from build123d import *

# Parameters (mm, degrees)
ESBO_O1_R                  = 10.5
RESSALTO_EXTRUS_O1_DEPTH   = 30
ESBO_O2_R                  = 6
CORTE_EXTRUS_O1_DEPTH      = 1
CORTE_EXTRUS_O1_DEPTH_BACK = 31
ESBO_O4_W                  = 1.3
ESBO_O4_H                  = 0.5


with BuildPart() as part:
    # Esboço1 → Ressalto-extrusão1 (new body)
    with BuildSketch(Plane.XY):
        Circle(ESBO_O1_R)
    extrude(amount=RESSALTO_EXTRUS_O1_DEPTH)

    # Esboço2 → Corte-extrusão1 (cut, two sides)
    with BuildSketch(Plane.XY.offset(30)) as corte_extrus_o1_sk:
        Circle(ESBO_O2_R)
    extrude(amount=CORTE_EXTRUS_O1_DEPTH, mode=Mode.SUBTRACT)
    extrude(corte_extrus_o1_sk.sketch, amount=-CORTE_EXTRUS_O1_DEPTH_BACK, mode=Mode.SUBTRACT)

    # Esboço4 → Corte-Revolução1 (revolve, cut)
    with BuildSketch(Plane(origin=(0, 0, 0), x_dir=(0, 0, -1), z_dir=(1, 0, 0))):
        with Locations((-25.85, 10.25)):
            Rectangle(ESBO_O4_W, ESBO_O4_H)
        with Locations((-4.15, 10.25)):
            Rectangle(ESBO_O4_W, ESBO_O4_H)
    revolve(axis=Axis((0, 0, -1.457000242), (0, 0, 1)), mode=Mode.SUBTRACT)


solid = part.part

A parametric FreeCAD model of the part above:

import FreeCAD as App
import Part
import Sketcher
from FreeCAD import Vector

doc = App.newDocument("Part")
body = doc.addObject("PartDesign::Body", "Body")

sketch1 = doc.addObject("Sketcher::SketchObject", "Sketch")
body.addObject(sketch1)
sketch1.AttachmentSupport = (doc.XY_Plane, [""])
sketch1.MapMode = "FlatFace"
sketch1.addGeometry(Part.Circle(Vector(0, 0, 0), Vector(0, 0, 1), 10.5), False)
sketch1.addConstraint(Sketcher.Constraint("Coincident", 0, 3, -1, 1))
sketch1.addConstraint(Sketcher.Constraint("Diameter", 0, 21.0))
pad1 = doc.addObject("PartDesign::Pad", "Pad")
body.addObject(pad1)
pad1.Profile = sketch1
pad1.Length = 30

sketch2 = doc.addObject("Sketcher::SketchObject", "Sketch001")
body.addObject(sketch2)
sketch2.AttachmentSupport = (doc.XY_Plane, [""])
sketch2.MapMode = "FlatFace"
sketch2.AttachmentOffset = App.Placement(Vector(0, 0, 30), App.Rotation())
sketch2.addGeometry(Part.Circle(Vector(0, 0, 0), Vector(0, 0, 1), 6), False)
sketch2.addConstraint(Sketcher.Constraint("Coincident", 0, 3, -1, 1))
sketch2.addConstraint(Sketcher.Constraint("Diameter", 0, 12.0))
pocket1 = doc.addObject("PartDesign::Pocket", "Pocket")
body.addObject(pocket1)
pocket1.Profile = sketch2
pocket1.Type = "ThroughAll"
pocket1.Midplane = True

sketch3 = doc.addObject("Sketcher::SketchObject", "Sketch002")
body.addObject(sketch3)
sketch3.AttachmentSupport = (doc.YZ_Plane, [""])
sketch3.MapMode = "FlatFace"
sketch3.addGeometry(Part.LineSegment(Vector(10.5, 26.5, 0), Vector(10, 26.5, 0)), False)
sketch3.addGeometry(Part.LineSegment(Vector(10, 26.5, 0), Vector(10, 25.2, 0)), False)
sketch3.addGeometry(Part.LineSegment(Vector(10, 25.2, 0), Vector(10.5, 25.2, 0)), False)
sketch3.addGeometry(Part.LineSegment(Vector(10.5, 25.2, 0), Vector(10.5, 26.5, 0)), False)
sketch3.addGeometry(Part.LineSegment(Vector(10.5, 4.8, 0), Vector(10, 4.8, 0)), False)
sketch3.addGeometry(Part.LineSegment(Vector(10, 4.8, 0), Vector(10, 3.5, 0)), False)
sketch3.addGeometry(Part.LineSegment(Vector(10, 3.5, 0), Vector(10.5, 3.5, 0)), False)
sketch3.addGeometry(Part.LineSegment(Vector(10.5, 3.5, 0), Vector(10.5, 4.8, 0)), False)
sketch3.addConstraint(Sketcher.Constraint("Coincident", 0, 2, 1, 1))
sketch3.addConstraint(Sketcher.Constraint("Coincident", 1, 2, 2, 1))
sketch3.addConstraint(Sketcher.Constraint("Coincident", 2, 2, 3, 1))
sketch3.addConstraint(Sketcher.Constraint("Coincident", 3, 2, 0, 1))
sketch3.addConstraint(Sketcher.Constraint("Coincident", 4, 2, 5, 1))
sketch3.addConstraint(Sketcher.Constraint("Coincident", 5, 2, 6, 1))
sketch3.addConstraint(Sketcher.Constraint("Coincident", 6, 2, 7, 1))
sketch3.addConstraint(Sketcher.Constraint("Coincident", 7, 2, 4, 1))
sketch3.addConstraint(Sketcher.Constraint("Horizontal", 0))
sketch3.addConstraint(Sketcher.Constraint("Vertical", 1))
sketch3.addConstraint(Sketcher.Constraint("Horizontal", 2))
sketch3.addConstraint(Sketcher.Constraint("Vertical", 3))
sketch3.addConstraint(Sketcher.Constraint("Horizontal", 4))
sketch3.addConstraint(Sketcher.Constraint("Vertical", 5))
sketch3.addConstraint(Sketcher.Constraint("Horizontal", 6))
sketch3.addConstraint(Sketcher.Constraint("Vertical", 7))
sketch3.addConstraint(Sketcher.Constraint("Vertical", 1, 2, 4, 2))
sketch3.addConstraint(Sketcher.Constraint("Vertical", 3, 2, 6, 2))
sketch3.addConstraint(Sketcher.Constraint("Equal", 3, 5))
sketch3.addConstraint(Sketcher.Constraint("DistanceX", 0, 2, 0, 1, 0.5))
sketch3.addConstraint(Sketcher.Constraint("DistanceY", 1, 2, 1, 1, 1.3))
sketch3.addConstraint(Sketcher.Constraint("DistanceX", -1, 1, 0, 2, 10.0))
sketch3.addConstraint(Sketcher.Constraint("DistanceY", 5, 2, 0, 2, 23.0))
sketch3.addConstraint(Sketcher.Constraint("DistanceY", -1, 1, 0, 2, 26.5))
groove = doc.addObject("PartDesign::Groove", "Groove")
body.addObject(groove)
groove.Profile = sketch3
groove.ReferenceAxis = (sketch3, ["V_Axis"])
groove.Angle = 360

doc.recompute()
